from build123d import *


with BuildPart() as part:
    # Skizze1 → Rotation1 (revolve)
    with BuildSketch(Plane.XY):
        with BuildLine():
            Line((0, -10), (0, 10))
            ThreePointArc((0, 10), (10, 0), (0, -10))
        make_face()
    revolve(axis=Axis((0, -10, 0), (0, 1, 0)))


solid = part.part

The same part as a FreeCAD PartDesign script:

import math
import FreeCAD as App
import Part
import Sketcher
from FreeCAD import Vector

doc = App.newDocument("Part")
body = doc.addObject("PartDesign::Body", "Body")

# Sketch on XY plane
sketch1 = body.newObject("Sketcher::SketchObject", "Sketch")
sketch1.AttachmentSupport = (doc.getObject("XY_Plane"), [""])
sketch1.MapMode = "FlatFace"
sketch1.addGeometry([
    Part.LineSegment(Vector(0, 10, 0), Vector(0, -10, 0)),
    Part.ArcOfCircle(Part.Circle(Vector(0, 0, 0), Vector(0, 0, 1), 10), math.radians(-90), math.radians(90)),
], False)
sketch1.addConstraint([
    Sketcher.Constraint("Coincident", 0, 1, 1, 2),
    Sketcher.Constraint("Coincident", 1, 1, 0, 2),
    Sketcher.Constraint("Vertical", 0),
    Sketcher.Constraint("Coincident", 1, 3, -1, 1),
    Sketcher.Constraint("PointOnObject", 0, 1, -2),
    Sketcher.Constraint("Radius", 1, 10.0),
])
revolution = body.newObject("PartDesign::Revolution", "Revolution")
revolution.Profile = sketch1
revolution.ReferenceAxis = (sketch1, ["V_Axis"])
revolution.Angle = 360

doc.recompute()
